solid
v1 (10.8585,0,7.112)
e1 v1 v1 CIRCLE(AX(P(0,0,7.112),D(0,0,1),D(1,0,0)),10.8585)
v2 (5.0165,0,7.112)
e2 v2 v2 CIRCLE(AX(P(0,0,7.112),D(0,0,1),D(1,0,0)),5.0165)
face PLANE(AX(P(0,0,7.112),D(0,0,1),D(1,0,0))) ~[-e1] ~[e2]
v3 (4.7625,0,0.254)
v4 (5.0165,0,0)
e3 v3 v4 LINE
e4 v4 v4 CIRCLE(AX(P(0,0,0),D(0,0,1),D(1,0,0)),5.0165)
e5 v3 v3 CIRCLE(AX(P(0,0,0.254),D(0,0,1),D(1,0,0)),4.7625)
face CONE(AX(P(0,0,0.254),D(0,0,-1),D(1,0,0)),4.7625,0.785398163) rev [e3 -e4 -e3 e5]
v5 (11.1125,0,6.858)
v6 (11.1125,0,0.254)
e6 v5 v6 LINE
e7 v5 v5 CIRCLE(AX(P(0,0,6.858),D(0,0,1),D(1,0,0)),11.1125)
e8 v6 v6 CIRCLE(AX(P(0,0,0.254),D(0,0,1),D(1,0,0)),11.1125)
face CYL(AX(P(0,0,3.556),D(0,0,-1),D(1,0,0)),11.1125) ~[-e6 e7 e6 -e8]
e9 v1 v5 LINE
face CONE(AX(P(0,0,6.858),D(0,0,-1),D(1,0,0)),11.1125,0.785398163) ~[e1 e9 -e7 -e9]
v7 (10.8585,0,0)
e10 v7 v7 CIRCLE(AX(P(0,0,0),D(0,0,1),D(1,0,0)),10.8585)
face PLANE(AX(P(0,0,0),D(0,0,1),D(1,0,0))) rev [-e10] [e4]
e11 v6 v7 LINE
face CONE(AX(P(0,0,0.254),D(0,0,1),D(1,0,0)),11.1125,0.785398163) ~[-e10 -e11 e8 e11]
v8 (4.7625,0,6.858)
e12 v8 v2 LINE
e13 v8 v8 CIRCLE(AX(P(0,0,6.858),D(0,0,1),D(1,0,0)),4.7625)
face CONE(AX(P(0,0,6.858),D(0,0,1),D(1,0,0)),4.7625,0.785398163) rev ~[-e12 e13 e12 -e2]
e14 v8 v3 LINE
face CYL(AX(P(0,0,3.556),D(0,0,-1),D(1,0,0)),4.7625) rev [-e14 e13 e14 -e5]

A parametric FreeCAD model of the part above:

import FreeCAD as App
import Part
import Sketcher
from FreeCAD import Vector
Q = App.Units.Quantity


def edges_at(feature, points):
    """Names of the edges that pass closest to the given points."""
    edges = feature.Shape.Edges
    near = lambda p: min(range(len(edges)), key=lambda i: edges[i].distToShape(Part.Vertex(*p))[0])
    return sorted({f"Edge{near(p) + 1}" for p in points})


def add_polygon(sketch, points):
    """Adds a closed chain of lines whose ends are joined by coincident constraints."""
    first, n = sketch.GeometryCount, len(points)
    for a, b in zip(points, points[1:] + points[:1]):
        sketch.addGeometry(Part.LineSegment(App.Vector(*a, 0), App.Vector(*b, 0)), False)
    for i in range(n):
        sketch.addConstraint(Sketcher.Constraint("Coincident", first + i, 2, first + (i + 1) % n, 1))

doc = App.newDocument("Part")
body = doc.addObject("PartDesign::Body", "Body")

sketch1 = body.newObject("Sketcher::SketchObject", "Sketch")
sketch1.AttachmentSupport = (doc.getObject("XZ_Plane"), [""])
sketch1.MapMode = "FlatFace"
add_polygon(sketch1, [(5, 0), (5, 7), (11, 7), (11, 0)])
sketch1.addConstraint(Sketcher.Constraint("Vertical", 0))
sketch1.addConstraint(Sketcher.Constraint("Horizontal", 1))
sketch1.addConstraint(Sketcher.Constraint("Vertical", 2))
sketch1.addConstraint(Sketcher.Constraint("Horizontal", 3))
sketch1.addConstraint(Sketcher.Constraint("PointOnObject", 2, 2, -1))
sketch1.addConstraint(Sketcher.Constraint("DistanceX", 1, 1, 1, 2, Q("0.25 in")))
sketch1.addConstraint(Sketcher.Constraint("DistanceY", 0, 1, 0, 2, Q("0.28 in")))
sketch1.addConstraint(Sketcher.Constraint("DistanceX", -1, 1, 0, 2, Q("0.1875 in")))
revolution = body.newObject("PartDesign::Revolution", "Revolution")
revolution.Profile = sketch1
revolution.ReferenceAxis = (sketch1, ["V_Axis"])
revolution.Angle = 360
doc.recompute()

chamfer = body.newObject("PartDesign::Chamfer", "Chamfer")
chamfer.Base = (revolution, edges_at(revolution, [
    (-11.113, 0, 0),
    (-11.113, 0, 7.112),
    (-4.763, 0, 7.112),
    (-4.763, 0, 0),
]))
chamfer.Size = Q("0.01 in")

doc.recompute()
